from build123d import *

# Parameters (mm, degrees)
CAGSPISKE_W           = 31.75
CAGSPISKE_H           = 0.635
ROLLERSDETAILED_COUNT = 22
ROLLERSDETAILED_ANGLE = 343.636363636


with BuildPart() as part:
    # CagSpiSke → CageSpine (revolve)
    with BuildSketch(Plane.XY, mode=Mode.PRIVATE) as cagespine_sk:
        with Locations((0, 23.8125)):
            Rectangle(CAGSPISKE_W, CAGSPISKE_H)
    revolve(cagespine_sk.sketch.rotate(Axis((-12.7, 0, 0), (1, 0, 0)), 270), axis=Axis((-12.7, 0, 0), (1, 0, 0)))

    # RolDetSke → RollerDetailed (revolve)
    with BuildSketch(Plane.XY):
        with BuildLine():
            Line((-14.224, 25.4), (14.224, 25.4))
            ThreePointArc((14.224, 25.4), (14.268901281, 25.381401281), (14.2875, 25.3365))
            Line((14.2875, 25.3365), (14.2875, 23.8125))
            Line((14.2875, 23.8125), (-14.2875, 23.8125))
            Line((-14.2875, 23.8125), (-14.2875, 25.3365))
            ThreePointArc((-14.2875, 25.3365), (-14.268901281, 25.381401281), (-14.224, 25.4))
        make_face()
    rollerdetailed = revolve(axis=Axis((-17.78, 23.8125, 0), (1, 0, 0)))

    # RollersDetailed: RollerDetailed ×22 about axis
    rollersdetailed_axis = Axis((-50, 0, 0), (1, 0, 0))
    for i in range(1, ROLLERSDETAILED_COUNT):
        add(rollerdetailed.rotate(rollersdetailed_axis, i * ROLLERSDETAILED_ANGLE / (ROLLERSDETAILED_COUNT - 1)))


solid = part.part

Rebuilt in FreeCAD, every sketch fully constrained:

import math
import FreeCAD as App
import Part
import Sketcher
Q = App.Units.Quantity

doc = App.newDocument("Part")
body = doc.addObject("PartDesign::Body", "Body")

# Sketch on XY plane
sketch1 = body.newObject("Sketcher::SketchObject", "Sketch")
sketch1.AttachmentSupport = (doc.getObject("XY_Plane"), [""])
sketch1.MapMode = "FlatFace"
sketch1.addGeometry(Part.LineSegment(App.Vector(-15.9, 24.1, 0), App.Vector(-15.9, 23.5, 0)), False)
sketch1.addGeometry(Part.LineSegment(App.Vector(-15.9, 23.5, 0), App.Vector(15.9, 23.5, 0)), False)
sketch1.addGeometry(Part.LineSegment(App.Vector(15.9, 23.5, 0), App.Vector(15.9, 24.1, 0)), False)
sketch1.addGeometry(Part.LineSegment(App.Vector(15.9, 24.1, 0), App.Vector(-15.9, 24.1, 0)), False)
sketch1.addConstraint(Sketcher.Constraint("Coincident", 0, 2, 1, 1))
sketch1.addConstraint(Sketcher.Constraint("Coincident", 1, 2, 2, 1))
sketch1.addConstraint(Sketcher.Constraint("Coincident", 2, 2, 3, 1))
sketch1.addConstraint(Sketcher.Constraint("Coincident", 3, 2, 0, 1))
sketch1.addConstraint(Sketcher.Constraint("Vertical", 0))
sketch1.addConstraint(Sketcher.Constraint("Horizontal", 1))
sketch1.addConstraint(Sketcher.Constraint("Vertical", 2))
sketch1.addConstraint(Sketcher.Constraint("Horizontal", 3))
sketch1.addConstraint(Sketcher.Constraint("DistanceX", 1, 1, 1, 2, Q("1.25 in")))
sketch1.addConstraint(Sketcher.Constraint("DistanceY", 0, 2, 0, 1, Q("0.025 in")))
sketch1.addConstraint(Sketcher.Constraint("DistanceY", -1, 1, 2, 2, Q("0.95 in")))
sketch1.addConstraint(Sketcher.Constraint("DistanceX", 0, 2, -1, 1, Q("0.625 in")))
revolution = body.newObject("PartDesign::Revolution", "Revolution")
revolution.Profile = sketch1
revolution.ReferenceAxis = (sketch1, ["H_Axis"])
revolution.Angle = 360

# Sketch on XY plane
sketch2 = body.newObject("Sketcher::SketchObject", "Sketch001")
sketch2.AttachmentSupport = (doc.getObject("XY_Plane"), [""])
sketch2.MapMode = "FlatFace"
sketch2.addGeometry(Part.LineSegment(App.Vector(14.22, 25.4, 0), App.Vector(-14.22, 25.4, 0)), False)
sketch2.addGeometry(Part.ArcOfCircle(Part.Circle(App.Vector(-14.22, 25.34, 0), App.Vector(0, 0, 1), 0.06), math.radians(90), math.radians(180)), False)
sketch2.addGeometry(Part.LineSegment(App.Vector(-14.29, 25.34, 0), App.Vector(-14.29, 23.81, 0)), False)
sketch2.addGeometry(Part.LineSegment(App.Vector(-14.29, 23.81, 0), App.Vector(14.29, 23.81, 0)), False)
sketch2.addGeometry(Part.LineSegment(App.Vector(14.29, 23.81, 0), App.Vector(14.29, 25.34, 0)), False)
sketch2.addGeometry(Part.ArcOfCircle(Part.Circle(App.Vector(14.22, 25.34, 0), App.Vector(0, 0, 1), 0.06), math.radians(0), math.radians(90)), False)
sketch2.addGeometry(Part.LineSegment(App.Vector(-14.29, 23.81, 0), App.Vector(14.29, 23.81, 0)), True)  # axis
sketch2.addConstraint(Sketcher.Constraint("Tangent", 0, 2, 1, 1))
sketch2.addConstraint(Sketcher.Constraint("Tangent", 1, 2, 2, 1))
sketch2.addConstraint(Sketcher.Constraint("Coincident", 2, 2, 3, 1))
sketch2.addConstraint(Sketcher.Constraint("Coincident", 3, 2, 4, 1))
sketch2.addConstraint(Sketcher.Constraint("Tangent", 4, 2, 5, 1))
sketch2.addConstraint(Sketcher.Constraint("Tangent", 5, 2, 0, 1))
sketch2.addConstraint(Sketcher.Constraint("Horizontal", 0))
sketch2.addConstraint(Sketcher.Constraint("Vertical", 2))
sketch2.addConstraint(Sketcher.Constraint("Horizontal", 3))
sketch2.addConstraint(Sketcher.Constraint("Vertical", 4))
sketch2.addConstraint(Sketcher.Constraint("Horizontal", 6))
sketch2.addConstraint(Sketcher.Constraint("Coincident", 6, 1, 2, 2))
sketch2.addConstraint(Sketcher.Constraint("Equal", 1, 5))
sketch2.addConstraint(Sketcher.Constraint("Vertical", 4, 2, 6, 2))
sketch2.addConstraint(Sketcher.Constraint("DistanceY", -1, 1, 0, 2, Q("1 in")))
sketch2.addConstraint(Sketcher.Constraint("DistanceX", 0, 2, 0, 1, Q("1.12 in")))
sketch2.addConstraint(Sketcher.Constraint("DistanceY", 2, 2, 2, 1, Q("0.06 in")))
sketch2.addConstraint(Sketcher.Constraint("Radius", 1, Q("0.0025 in")))
sketch2.addConstraint(Sketcher.Constraint("DistanceX", 1, 3, -1, 1, Q("0.56 in")))
revolution2 = body.newObject("PartDesign::Revolution", "Revolution001")
revolution2.Profile = sketch2
revolution2.ReferenceAxis = (sketch2, ["Axis0"])
revolution2.Angle = 360
doc.recompute()

polarpattern = body.newObject("PartDesign::PolarPattern", "PolarPattern")
polarpattern.Originals = [revolution2]
polarpattern.Axis = (doc.getObject("X_Axis"), [""])
polarpattern.Angle = 360
polarpattern.Occurrences = 22
body.Tip = polarpattern

doc.recompute()
